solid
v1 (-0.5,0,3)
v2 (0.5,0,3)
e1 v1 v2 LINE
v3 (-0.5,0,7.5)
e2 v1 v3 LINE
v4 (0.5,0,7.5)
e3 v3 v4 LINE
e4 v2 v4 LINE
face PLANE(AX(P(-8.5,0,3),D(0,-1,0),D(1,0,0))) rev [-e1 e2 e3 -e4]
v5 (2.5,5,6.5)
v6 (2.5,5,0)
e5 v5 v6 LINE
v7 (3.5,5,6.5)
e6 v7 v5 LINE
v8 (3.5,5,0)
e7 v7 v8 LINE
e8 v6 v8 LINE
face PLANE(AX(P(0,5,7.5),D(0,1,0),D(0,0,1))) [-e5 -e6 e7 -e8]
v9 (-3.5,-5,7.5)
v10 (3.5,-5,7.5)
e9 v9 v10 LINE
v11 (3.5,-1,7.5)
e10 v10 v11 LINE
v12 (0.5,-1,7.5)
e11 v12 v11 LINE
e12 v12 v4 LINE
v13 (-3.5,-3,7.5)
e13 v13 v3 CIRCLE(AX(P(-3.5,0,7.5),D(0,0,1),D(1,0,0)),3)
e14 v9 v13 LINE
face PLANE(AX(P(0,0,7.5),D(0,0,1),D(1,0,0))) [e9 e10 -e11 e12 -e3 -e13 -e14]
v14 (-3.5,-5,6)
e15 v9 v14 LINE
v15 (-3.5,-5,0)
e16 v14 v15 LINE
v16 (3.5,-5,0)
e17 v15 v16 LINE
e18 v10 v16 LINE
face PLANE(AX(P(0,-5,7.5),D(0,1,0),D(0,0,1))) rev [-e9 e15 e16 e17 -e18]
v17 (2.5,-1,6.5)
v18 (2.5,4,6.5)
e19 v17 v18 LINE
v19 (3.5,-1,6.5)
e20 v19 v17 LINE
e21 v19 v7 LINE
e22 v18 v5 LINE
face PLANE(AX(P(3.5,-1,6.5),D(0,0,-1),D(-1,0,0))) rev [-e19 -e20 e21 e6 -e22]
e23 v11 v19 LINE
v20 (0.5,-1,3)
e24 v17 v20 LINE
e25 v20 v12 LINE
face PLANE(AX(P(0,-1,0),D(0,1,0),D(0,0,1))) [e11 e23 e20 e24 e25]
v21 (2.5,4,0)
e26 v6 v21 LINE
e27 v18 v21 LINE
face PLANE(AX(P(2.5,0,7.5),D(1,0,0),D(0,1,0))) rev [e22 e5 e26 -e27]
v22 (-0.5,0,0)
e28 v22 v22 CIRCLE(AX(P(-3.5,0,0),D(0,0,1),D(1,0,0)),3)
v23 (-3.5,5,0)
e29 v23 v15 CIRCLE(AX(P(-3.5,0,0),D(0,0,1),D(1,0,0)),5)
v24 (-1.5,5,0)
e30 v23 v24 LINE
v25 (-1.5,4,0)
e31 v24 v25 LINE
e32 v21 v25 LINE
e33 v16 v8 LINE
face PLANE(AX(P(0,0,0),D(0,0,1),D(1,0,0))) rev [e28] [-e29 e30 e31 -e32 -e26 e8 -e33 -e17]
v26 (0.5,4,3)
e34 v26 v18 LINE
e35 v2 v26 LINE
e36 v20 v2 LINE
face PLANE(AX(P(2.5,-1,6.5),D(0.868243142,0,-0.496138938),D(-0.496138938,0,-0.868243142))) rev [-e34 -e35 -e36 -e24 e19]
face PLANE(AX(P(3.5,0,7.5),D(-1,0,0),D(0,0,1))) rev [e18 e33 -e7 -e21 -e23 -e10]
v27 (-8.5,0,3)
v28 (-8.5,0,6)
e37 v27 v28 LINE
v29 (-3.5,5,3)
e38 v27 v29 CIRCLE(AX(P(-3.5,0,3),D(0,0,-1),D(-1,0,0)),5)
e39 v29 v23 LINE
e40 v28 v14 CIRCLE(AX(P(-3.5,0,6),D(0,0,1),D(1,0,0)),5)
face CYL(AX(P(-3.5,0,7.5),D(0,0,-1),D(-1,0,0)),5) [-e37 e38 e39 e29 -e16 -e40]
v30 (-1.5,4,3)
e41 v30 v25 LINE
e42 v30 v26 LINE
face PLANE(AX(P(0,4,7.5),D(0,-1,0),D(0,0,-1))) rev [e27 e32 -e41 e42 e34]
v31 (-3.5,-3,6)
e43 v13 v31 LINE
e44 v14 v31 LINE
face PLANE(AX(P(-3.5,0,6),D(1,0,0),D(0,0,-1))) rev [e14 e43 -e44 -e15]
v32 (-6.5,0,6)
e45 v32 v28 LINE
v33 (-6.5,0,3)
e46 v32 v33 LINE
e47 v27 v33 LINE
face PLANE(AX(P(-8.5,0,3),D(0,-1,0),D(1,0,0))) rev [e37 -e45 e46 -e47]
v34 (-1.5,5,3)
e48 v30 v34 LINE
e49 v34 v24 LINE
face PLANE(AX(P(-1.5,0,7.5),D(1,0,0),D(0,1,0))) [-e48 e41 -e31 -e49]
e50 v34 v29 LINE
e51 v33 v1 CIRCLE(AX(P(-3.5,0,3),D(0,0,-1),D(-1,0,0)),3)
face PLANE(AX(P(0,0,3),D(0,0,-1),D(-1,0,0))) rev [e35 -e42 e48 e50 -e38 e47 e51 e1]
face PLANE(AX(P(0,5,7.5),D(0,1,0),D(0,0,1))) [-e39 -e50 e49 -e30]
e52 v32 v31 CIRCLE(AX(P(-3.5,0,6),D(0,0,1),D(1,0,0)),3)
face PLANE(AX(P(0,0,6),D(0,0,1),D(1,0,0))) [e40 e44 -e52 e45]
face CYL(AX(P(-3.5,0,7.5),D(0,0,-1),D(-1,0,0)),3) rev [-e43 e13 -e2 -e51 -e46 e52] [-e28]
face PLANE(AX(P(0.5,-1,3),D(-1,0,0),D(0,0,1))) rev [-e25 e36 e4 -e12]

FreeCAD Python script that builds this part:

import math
import FreeCAD as App
import Part
import Sketcher
Q = App.Units.Quantity

doc = App.newDocument("Part")
body = doc.addObject("PartDesign::Body", "Body")

# Sketch on XY plane
sketch1 = body.newObject("Sketcher::SketchObject", "Sketch")
sketch1.AttachmentSupport = (doc.getObject("XY_Plane"), [""])
sketch1.MapMode = "FlatFace"
sketch1.addGeometry([
    Part.LineSegment(App.Vector(-1.5, 5, 0), App.Vector(-3.5, 5, 0)),  # 0
    Part.ArcOfCircle(Part.Circle(App.Vector(-3.5, 0, 0), App.Vector(0, 0, 1), 5), math.radians(90), math.radians(270)),  # 1
    Part.LineSegment(App.Vector(-3.5, -5, 0), App.Vector(3.5, -5, 0)),  # 2
    Part.LineSegment(App.Vector(3.5, -5, 0), App.Vector(3.5, 5, 0)),  # 3
    Part.LineSegment(App.Vector(3.5, 5, 0), App.Vector(2.5, 5, 0)),  # 4
    Part.LineSegment(App.Vector(2.5, 5, 0), App.Vector(2.5, 4, 0)),  # 5
    Part.LineSegment(App.Vector(2.5, 4, 0), App.Vector(-1.5, 4, 0)),  # 6
    Part.LineSegment(App.Vector(-1.5, 4, 0), App.Vector(-1.5, 5, 0)),  # 7
    Part.Circle(App.Vector(-3.5, 0, 0), App.Vector(0, 0, 1), 3),  # 8
], False)
sketch1.addConstraint([
    Sketcher.Constraint("Tangent", 0, 2, 1, 1),
    Sketcher.Constraint("Tangent", 1, 2, 2, 1),
    Sketcher.Constraint("Coincident", 2, 2, 3, 1),
    Sketcher.Constraint("Coincident", 3, 2, 4, 1),
    Sketcher.Constraint("Coincident", 4, 2, 5, 1),
    Sketcher.Constraint("Coincident", 5, 2, 6, 1),
    Sketcher.Constraint("Coincident", 6, 2, 7, 1),
    Sketcher.Constraint("Coincident", 7, 2, 0, 1),
    Sketcher.Constraint("Horizontal", 0),
    Sketcher.Constraint("Horizontal", 2),
    Sketcher.Constraint("Vertical", 3),
    Sketcher.Constraint("Horizontal", 4),
    Sketcher.Constraint("Vertical", 5),
    Sketcher.Constraint("Horizontal", 6),
    Sketcher.Constraint("Vertical", 7),
    Sketcher.Constraint("Coincident", 8, 3, 1, 3),
    Sketcher.Constraint("Symmetric", 0, 2, 2, 2, -1, 1),
    Sketcher.Constraint("Horizontal", 0, 2, 3, 2),
    Sketcher.Constraint("Equal", 4, 5),
    Sketcher.Constraint("Diameter", 8, Q("6 mm")),
    Sketcher.Constraint("Radius", 1, Q("5 mm")),
    Sketcher.Constraint("DistanceX", 0, 2, 0, 1, Q("2 mm")),
    Sketcher.Constraint("DistanceX", 2, 1, 2, 2, Q("7 mm")),
    Sketcher.Constraint("DistanceX", 4, 2, 4, 1, Q("1 mm")),
])
pad1 = body.newObject("PartDesign::Pad", "Pad")
pad1.Profile = sketch1
pad1.Length = 7.5

# Sketch on XY plane
sketch2 = body.newObject("Sketcher::SketchObject", "Sketch001")
sketch2.AttachmentSupport = (doc.getObject("XY_Plane"), [""])
sketch2.MapMode = "FlatFace"
sketch2.AttachmentOffset = App.Placement(App.Vector(0, 0, 7.5), App.Rotation())
sketch2.addGeometry([
    Part.LineSegment(App.Vector(-8, 5, 0), App.Vector(-8, 0, 0)),
    Part.LineSegment(App.Vector(-8, 0, 0), App.Vector(0, 0, 0)),
    Part.LineSegment(App.Vector(0, 0, 0), App.Vector(0, 5, 0)),
    Part.LineSegment(App.Vector(0, 5, 0), App.Vector(-8, 5, 0)),
], False)
sketch2.addConstraint([
    Sketcher.Constraint("Coincident", 0, 2, 1, 1),
    Sketcher.Constraint("Coincident", 1, 2, 2, 1),
    Sketcher.Constraint("Coincident", 2, 2, 3, 1),
    Sketcher.Constraint("Coincident", 3, 2, 0, 1),
    Sketcher.Constraint("Vertical", 0),
    Sketcher.Constraint("Horizontal", 1),
    Sketcher.Constraint("Vertical", 2),
    Sketcher.Constraint("Horizontal", 3),
    Sketcher.Constraint("PointOnObject", 0, 2, -1),
    Sketcher.Constraint("DistanceX", 1, 1, 1, 2, Q("9 mm")),
    Sketcher.Constraint("DistanceY", 0, 2, 0, 1, Q("5 mm")),
    Sketcher.Constraint("DistanceX", 0, 2, -1, 1, Q("8.5 mm")),
])
pocket1 = body.newObject("PartDesign::Pocket", "Pocket")
pocket1.Profile = sketch2
pocket1.Length = 4.5

# Sketch on XY plane
sketch3 = body.newObject("Sketcher::SketchObject", "Sketch002")
sketch3.AttachmentSupport = (doc.getObject("XY_Plane"), [""])
sketch3.MapMode = "FlatFace"
sketch3.AttachmentOffset = App.Placement(App.Vector(0, 0, 7.5), App.Rotation())
sketch3.addGeometry([
    Part.LineSegment(App.Vector(-8, 0, 0), App.Vector(-8, -5, 0)),
    Part.LineSegment(App.Vector(-8, -5, 0), App.Vector(-4, -5, 0)),
    Part.LineSegment(App.Vector(-4, -5, 0), App.Vector(-4, 0, 0)),
    Part.LineSegment(App.Vector(-4, 0, 0), App.Vector(-8, 0, 0)),
], False)
sketch3.addConstraint([
    Sketcher.Constraint("Coincident", 0, 2, 1, 1),
    Sketcher.Constraint("Coincident", 1, 2, 2, 1),
    Sketcher.Constraint("Coincident", 2, 2, 3, 1),
    Sketcher.Constraint("Coincident", 3, 2, 0, 1),
    Sketcher.Constraint("Vertical", 0),
    Sketcher.Constraint("Horizontal", 1),
    Sketcher.Constraint("Vertical", 2),
    Sketcher.Constraint("Horizontal", 3),
    Sketcher.Constraint("PointOnObject", 2, 2, -1),
    Sketcher.Constraint("Equal", 3, 0),
    Sketcher.Constraint("DistanceX", 1, 1, 1, 2, Q("5 mm")),
    Sketcher.Constraint("DistanceX", 0, 2, -1, 1, Q("8.5 mm")),
])
pocket2 = body.newObject("PartDesign::Pocket", "Pocket001")
pocket2.Profile = sketch3
pocket2.Length = 1.5

# Sketch on XZ plane
sketch4 = body.newObject("Sketcher::SketchObject", "Sketch003")
sketch4.AttachmentSupport = (doc.getObject("XZ_Plane"), [""])
sketch4.MapMode = "FlatFace"
sketch4.AttachmentOffset = App.Placement(App.Vector(0, 0, -5), App.Rotation())
sketch4.addGeometry([
    Part.LineSegment(App.Vector(3.5, 6.5, 0), App.Vector(2.5, 6.5, 0)),  # 0
    Part.LineSegment(App.Vector(2.5, 6.5, 0), App.Vector(0.5, 3, 0)),  # 1
    Part.LineSegment(App.Vector(0.5, 3, 0), App.Vector(0.5, 7.5, 0)),  # 2
    Part.LineSegment(App.Vector(0.5, 7.5, 0), App.Vector(3.5, 7.5, 0)),  # 3
    Part.LineSegment(App.Vector(3.5, 7.5, 0), App.Vector(3.5, 6.5, 0)),  # 4
], False)
sketch4.addConstraint([
    Sketcher.Constraint("Coincident", 0, 2, 1, 1),
    Sketcher.Constraint("Coincident", 1, 2, 2, 1),
    Sketcher.Constraint("Coincident", 2, 2, 3, 1),
    Sketcher.Constraint("Coincident", 3, 2, 4, 1),
    Sketcher.Constraint("Coincident", 4, 2, 0, 1),
    Sketcher.Constraint("Horizontal", 0),
    Sketcher.Constraint("Vertical", 2),
    Sketcher.Constraint("Horizontal", 3),
    Sketcher.Constraint("Vertical", 4),
    Sketcher.Constraint("Equal", 0, 4),
    Sketcher.Constraint("DistanceX", 0, 2, 0, 1, Q("1 mm")),
    Sketcher.Constraint("DistanceX", 3, 1, 3, 2, Q("3 mm")),
    Sketcher.Constraint("DistanceY", 2, 1, 2, 2, Q("4.5 mm")),
    Sketcher.Constraint("DistanceY", -1, 1, 1, 2, Q("3 mm")),
    Sketcher.Constraint("DistanceX", -1, 1, 0, 2, Q("2.5 mm")),
])
pocket3 = body.newObject("PartDesign::Pocket", "Pocket002")
pocket3.Profile = sketch4
pocket3.Length = 6
pocket3.Reversed = True

doc.recompute()
